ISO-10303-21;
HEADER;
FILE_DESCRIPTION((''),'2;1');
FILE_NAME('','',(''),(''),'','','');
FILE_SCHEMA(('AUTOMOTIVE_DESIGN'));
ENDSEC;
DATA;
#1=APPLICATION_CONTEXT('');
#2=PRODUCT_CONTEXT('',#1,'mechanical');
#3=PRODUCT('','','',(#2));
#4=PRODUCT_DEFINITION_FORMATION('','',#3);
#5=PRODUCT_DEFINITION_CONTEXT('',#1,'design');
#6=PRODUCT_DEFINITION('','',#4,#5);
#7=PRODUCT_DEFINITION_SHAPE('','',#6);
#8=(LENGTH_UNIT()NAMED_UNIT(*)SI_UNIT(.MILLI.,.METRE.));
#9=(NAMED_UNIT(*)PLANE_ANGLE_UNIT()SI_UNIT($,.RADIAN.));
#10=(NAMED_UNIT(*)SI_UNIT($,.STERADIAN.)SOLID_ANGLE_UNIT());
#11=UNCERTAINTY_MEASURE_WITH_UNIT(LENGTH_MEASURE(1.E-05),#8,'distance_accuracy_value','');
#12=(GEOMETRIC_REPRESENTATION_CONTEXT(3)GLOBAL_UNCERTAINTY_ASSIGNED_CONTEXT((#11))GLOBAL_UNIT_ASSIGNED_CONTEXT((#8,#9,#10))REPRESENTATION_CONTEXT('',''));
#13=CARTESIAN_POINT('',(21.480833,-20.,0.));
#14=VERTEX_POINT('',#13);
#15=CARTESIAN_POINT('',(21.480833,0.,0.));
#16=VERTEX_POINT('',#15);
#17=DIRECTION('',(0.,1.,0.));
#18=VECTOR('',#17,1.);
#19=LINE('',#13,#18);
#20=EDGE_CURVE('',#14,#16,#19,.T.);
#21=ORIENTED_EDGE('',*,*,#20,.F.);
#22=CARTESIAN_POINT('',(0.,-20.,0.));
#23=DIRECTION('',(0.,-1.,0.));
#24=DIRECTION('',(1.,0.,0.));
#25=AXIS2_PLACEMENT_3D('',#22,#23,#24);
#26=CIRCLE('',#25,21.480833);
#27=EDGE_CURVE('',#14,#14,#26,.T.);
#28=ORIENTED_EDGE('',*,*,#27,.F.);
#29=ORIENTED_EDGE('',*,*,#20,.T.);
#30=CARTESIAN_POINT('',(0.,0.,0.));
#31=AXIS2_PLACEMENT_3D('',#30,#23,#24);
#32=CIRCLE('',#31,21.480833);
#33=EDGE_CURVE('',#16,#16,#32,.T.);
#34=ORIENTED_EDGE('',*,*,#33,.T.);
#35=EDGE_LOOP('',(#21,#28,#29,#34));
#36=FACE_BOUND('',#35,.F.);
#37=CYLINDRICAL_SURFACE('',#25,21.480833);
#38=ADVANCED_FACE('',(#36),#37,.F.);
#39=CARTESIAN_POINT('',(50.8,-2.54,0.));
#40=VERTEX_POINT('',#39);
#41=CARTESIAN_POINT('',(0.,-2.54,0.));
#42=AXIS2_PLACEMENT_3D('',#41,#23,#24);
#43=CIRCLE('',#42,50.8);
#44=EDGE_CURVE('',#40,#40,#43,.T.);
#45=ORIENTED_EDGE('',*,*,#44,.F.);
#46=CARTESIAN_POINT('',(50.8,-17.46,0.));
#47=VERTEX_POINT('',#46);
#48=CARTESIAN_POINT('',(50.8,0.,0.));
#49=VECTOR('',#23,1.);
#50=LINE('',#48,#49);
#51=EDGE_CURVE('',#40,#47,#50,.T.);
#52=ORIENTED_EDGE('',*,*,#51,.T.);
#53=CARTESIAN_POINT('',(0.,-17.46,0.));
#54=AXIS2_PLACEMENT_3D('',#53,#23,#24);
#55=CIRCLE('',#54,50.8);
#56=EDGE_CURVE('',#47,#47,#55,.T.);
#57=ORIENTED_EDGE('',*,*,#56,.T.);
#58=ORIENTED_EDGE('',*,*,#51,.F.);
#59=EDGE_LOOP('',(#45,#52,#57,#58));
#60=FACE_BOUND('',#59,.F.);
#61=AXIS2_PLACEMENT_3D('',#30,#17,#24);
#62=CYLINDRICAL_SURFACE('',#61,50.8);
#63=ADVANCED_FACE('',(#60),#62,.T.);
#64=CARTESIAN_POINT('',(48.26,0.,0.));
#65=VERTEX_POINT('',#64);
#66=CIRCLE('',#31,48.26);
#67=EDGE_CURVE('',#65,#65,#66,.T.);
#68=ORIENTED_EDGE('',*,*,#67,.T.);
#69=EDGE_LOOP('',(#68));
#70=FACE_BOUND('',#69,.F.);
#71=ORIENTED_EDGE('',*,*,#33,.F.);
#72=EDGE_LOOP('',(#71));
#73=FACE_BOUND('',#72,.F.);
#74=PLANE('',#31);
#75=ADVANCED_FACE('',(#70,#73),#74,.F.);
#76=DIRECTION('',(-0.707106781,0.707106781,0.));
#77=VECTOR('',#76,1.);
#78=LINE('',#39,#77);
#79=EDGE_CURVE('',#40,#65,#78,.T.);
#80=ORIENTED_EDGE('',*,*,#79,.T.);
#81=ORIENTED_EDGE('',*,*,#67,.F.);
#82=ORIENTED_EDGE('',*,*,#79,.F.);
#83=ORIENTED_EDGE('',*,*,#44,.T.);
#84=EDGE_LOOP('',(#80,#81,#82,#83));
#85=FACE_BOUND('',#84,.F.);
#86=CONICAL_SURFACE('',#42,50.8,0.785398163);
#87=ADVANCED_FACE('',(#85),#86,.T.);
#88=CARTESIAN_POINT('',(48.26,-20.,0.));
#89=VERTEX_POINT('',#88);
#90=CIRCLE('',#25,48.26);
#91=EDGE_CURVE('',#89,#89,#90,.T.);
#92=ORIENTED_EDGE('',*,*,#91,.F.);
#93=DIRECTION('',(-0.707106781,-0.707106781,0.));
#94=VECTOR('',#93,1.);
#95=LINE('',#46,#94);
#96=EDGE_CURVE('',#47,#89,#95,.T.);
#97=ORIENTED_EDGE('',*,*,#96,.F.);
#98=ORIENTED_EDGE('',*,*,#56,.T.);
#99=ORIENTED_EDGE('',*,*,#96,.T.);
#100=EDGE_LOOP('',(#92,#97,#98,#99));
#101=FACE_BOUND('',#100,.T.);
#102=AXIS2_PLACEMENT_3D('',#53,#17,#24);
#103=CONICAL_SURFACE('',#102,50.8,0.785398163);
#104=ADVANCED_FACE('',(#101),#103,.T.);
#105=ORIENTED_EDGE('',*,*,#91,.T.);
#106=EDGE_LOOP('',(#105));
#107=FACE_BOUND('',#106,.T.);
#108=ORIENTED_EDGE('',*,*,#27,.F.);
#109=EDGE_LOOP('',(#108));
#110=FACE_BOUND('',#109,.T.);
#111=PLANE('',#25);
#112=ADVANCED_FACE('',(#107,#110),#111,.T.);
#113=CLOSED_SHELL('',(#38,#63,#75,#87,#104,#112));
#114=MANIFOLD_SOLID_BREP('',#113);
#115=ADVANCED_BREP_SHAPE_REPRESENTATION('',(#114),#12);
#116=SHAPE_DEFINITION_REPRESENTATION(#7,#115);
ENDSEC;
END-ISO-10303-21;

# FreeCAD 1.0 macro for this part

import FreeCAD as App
import Part
import Sketcher

V = App.Vector
Q = App.Units.Quantity


def edges_at(feature, points):
    """Names of the edges that pass closest to the given points."""
    edges = feature.Shape.Edges
    near = lambda p: min(range(len(edges)), key=lambda i: edges[i].distToShape(Part.Vertex(*p))[0])
    return sorted({f"Edge{near(p) + 1}" for p in points})

doc = App.newDocument("Part")
params = doc.addObject("Spreadsheet::Sheet", "Params")
for row, (alias, value) in enumerate([
    ("sketch1_diameter", "4 in"),
    ("pad1_length", "20 mm"),
    ("chamfer_size", "0.1 in"),
], start=1):
    params.set(f"A{row}", alias)
    params.set(f"B{row}", "=" + value)
    params.setAlias(f"B{row}", alias)

body = doc.addObject("PartDesign::Body", "Body")

sketch1 = doc.addObject("Sketcher::SketchObject", "Sketch")
body.addObject(sketch1)
sketch1.AttachmentSupport = (doc.XZ_Plane, [""])
sketch1.MapMode = "FlatFace"
sketch1.addGeometry(Part.Circle(V(0, 0, 0), V(0, 0, 1), 51), False)
sketch1.addConstraint(Sketcher.Constraint("Coincident", 0, 3, -1, 1))
sketch1.addConstraint(Sketcher.Constraint("Diameter", 0, Q("4 in")))
sketch1.setExpression("Constraints[1]", "Params.sketch1_diameter")
pad1 = doc.addObject("PartDesign::Pad", "Pad")
body.addObject(pad1)
pad1.Profile = sketch1
pad1.setExpression("Length", "Params.pad1_length")
doc.recompute()

chamfer = doc.addObject("PartDesign::Chamfer", "Chamfer")
body.addObject(chamfer)
chamfer.Base = (pad1, edges_at(pad1, [(-50.8, -20, 0), (-50.8, 0, 0)]))
chamfer.setExpression("Size", "Params.chamfer_size")

sketch2 = doc.addObject("Sketcher::SketchObject", "Sketch001")
body.addObject(sketch2)
sketch2.AttachmentSupport = (doc.XZ_Plane, [""])
sketch2.MapMode = "FlatFace"
sketch2.AttachmentOffset = App.Placement(V(0, 0, 20), App.Rotation())
sketch2.addGeometry(Part.Circle(V(0, 0, 0), V(0, 0, 1), 21), False)
sketch2.addConstraint(Sketcher.Constraint("Coincident", 0, 3, -1, 1))
sketch2.addConstraint(Sketcher.Constraint("Diameter", 0, 42.961666))
pocket1 = doc.addObject("PartDesign::Pocket", "Pocket")
body.addObject(pocket1)
pocket1.Profile = sketch2
pocket1.Type = "ThroughAll"

doc.recompute()
